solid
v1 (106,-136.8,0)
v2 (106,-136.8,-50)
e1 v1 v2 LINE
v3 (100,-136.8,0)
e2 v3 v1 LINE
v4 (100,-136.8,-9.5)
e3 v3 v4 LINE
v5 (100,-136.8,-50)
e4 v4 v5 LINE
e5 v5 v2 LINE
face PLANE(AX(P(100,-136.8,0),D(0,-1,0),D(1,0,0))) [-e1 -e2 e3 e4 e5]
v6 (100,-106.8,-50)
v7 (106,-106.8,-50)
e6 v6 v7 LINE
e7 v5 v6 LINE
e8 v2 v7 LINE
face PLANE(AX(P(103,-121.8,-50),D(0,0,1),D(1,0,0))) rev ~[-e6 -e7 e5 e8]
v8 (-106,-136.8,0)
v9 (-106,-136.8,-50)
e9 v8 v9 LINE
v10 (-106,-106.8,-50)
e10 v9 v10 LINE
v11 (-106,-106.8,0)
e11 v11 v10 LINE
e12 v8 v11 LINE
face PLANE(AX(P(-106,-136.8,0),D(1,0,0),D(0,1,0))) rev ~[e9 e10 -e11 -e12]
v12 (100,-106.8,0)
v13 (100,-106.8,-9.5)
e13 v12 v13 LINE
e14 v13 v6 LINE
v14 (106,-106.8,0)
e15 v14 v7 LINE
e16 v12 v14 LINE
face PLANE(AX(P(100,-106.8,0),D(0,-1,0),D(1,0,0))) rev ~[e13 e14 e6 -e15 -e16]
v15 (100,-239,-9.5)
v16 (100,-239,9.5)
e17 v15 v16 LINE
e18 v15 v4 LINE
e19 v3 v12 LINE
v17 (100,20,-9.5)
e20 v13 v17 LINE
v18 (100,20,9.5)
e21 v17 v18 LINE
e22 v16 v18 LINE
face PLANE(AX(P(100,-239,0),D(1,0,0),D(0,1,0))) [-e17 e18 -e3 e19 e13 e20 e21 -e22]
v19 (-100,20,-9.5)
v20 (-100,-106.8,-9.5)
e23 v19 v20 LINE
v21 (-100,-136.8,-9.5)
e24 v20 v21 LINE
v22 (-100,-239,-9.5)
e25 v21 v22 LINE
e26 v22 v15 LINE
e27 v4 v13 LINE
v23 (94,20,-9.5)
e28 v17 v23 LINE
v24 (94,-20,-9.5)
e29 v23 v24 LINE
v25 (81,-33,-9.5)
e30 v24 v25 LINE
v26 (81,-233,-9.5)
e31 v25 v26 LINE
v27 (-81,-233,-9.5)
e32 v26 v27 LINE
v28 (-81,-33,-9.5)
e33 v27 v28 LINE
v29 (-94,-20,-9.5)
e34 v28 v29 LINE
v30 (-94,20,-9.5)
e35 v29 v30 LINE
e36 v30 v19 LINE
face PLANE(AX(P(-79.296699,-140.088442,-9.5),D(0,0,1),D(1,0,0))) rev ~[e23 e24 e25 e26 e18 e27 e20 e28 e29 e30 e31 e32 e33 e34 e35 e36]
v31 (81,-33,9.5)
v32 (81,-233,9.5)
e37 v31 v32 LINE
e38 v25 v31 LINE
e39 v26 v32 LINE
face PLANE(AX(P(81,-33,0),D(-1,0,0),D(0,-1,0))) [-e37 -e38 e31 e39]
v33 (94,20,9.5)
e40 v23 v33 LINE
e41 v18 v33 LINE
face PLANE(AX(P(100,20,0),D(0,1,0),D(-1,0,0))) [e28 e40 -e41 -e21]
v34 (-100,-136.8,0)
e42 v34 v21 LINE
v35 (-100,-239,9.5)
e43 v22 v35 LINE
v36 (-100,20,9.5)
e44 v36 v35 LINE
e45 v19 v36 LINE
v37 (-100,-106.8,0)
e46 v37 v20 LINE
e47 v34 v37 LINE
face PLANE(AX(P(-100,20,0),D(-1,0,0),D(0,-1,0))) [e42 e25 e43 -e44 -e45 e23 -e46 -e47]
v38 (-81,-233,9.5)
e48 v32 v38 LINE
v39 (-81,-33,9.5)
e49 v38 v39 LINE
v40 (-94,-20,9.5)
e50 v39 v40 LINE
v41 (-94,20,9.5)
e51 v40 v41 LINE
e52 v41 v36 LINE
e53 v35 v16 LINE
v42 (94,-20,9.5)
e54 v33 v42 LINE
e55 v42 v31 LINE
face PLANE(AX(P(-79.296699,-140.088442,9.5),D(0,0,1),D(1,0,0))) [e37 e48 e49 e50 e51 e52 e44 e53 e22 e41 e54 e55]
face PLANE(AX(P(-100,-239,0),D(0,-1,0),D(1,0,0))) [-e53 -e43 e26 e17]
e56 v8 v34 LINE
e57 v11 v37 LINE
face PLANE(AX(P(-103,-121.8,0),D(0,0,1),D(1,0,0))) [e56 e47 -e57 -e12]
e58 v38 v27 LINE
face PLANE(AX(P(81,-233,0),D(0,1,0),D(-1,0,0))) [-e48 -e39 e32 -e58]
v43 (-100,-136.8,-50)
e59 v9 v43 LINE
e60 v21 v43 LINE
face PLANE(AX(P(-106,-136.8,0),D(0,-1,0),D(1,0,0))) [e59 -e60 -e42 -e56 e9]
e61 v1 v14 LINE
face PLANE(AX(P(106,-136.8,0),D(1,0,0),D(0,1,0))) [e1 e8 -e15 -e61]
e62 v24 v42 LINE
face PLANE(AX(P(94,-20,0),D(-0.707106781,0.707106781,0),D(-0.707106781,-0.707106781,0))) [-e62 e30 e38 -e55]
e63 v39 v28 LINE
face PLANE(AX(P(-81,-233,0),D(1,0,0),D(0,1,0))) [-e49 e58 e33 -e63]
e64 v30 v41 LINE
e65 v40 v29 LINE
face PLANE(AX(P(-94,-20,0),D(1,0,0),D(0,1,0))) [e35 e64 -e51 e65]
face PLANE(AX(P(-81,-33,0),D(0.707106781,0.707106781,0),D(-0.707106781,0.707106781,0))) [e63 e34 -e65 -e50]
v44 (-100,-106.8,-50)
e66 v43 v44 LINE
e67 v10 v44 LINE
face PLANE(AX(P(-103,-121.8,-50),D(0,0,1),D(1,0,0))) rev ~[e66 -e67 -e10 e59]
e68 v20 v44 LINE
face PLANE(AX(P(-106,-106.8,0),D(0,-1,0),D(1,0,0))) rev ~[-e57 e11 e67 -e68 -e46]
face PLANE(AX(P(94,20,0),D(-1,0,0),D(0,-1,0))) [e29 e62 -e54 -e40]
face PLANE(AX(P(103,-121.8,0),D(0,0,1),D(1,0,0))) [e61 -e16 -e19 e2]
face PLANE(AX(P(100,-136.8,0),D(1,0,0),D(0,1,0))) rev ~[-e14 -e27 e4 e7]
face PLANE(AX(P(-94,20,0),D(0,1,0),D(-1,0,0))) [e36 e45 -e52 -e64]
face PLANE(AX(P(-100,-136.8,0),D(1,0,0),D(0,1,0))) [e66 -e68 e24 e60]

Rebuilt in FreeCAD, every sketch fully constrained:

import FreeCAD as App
import Part
import Sketcher
from FreeCAD import Vector


def add_polygon(sketch, points):
    """Adds a closed chain of lines whose ends are joined by coincident constraints."""
    first, n = sketch.GeometryCount, len(points)
    for a, b in zip(points, points[1:] + points[:1]):
        sketch.addGeometry(Part.LineSegment(App.Vector(*a, 0), App.Vector(*b, 0)), False)
    for i in range(n):
        sketch.addConstraint(Sketcher.Constraint("Coincident", first + i, 2, first + (i + 1) % n, 1))

doc = App.newDocument("Part")
body = doc.addObject("PartDesign::Body", "Body")

sketch1 = body.newObject("Sketcher::SketchObject", "Sketch")
sketch1.AttachmentSupport = (doc.getObject("XY_Plane"), [""])
sketch1.MapMode = "FlatFace"
add_polygon(sketch1, [(-94, -20), (-94, 20), (-100, 20), (-100, -239), (100, -239), (100, 20), (94, 20), (94, -20), (81, -33), (81, -233), (-81, -233), (-81, -33)])
sketch1.addConstraint(Sketcher.Constraint("Vertical", 0))
sketch1.addConstraint(Sketcher.Constraint("Horizontal", 1))
sketch1.addConstraint(Sketcher.Constraint("Vertical", 2))
sketch1.addConstraint(Sketcher.Constraint("Horizontal", 3))
sketch1.addConstraint(Sketcher.Constraint("Vertical", 4))
sketch1.addConstraint(Sketcher.Constraint("Horizontal", 5))
sketch1.addConstraint(Sketcher.Constraint("Vertical", 6))
sketch1.addConstraint(Sketcher.Constraint("Vertical", 8))
sketch1.addConstraint(Sketcher.Constraint("Horizontal", 9))
sketch1.addConstraint(Sketcher.Constraint("Vertical", 10))
sketch1.addConstraint(Sketcher.Constraint("Symmetric", 0, 2, 6, 2, -1, 1))
sketch1.addConstraint(Sketcher.Constraint("Symmetric", 1, 2, 4, 2, -2))
sketch1.addConstraint(Sketcher.Constraint("Symmetric", 7, 2, 10, 2, -2))
sketch1.addConstraint(Sketcher.Constraint("Perpendicular", 7, 11))
sketch1.addConstraint(Sketcher.Constraint("Horizontal", 6, 2, 11, 2))
sketch1.addConstraint(Sketcher.Constraint("Equal", 3, 8))
sketch1.addConstraint(Sketcher.Constraint("DistanceX", 1, 2, 1, 1, 6.0))
sketch1.addConstraint(Sketcher.Constraint("DistanceX", 3, 1, 3, 2, 200.0))
sketch1.addConstraint(Sketcher.Constraint("DistanceX", 9, 2, 9, 1, 162.0))
sketch1.addConstraint(Sketcher.Constraint("DistanceY", 0, 1, 0, 2, 40.0))
sketch1.addConstraint(Sketcher.Constraint("DistanceY", 2, 2, 2, 1, 259.0))
pad1 = body.newObject("PartDesign::Pad", "Pad")
pad1.Profile = sketch1
pad1.Type = "TwoLengths"
pad1.Length = 9.5
pad1.Length2 = 9.5

sketch2 = body.newObject("Sketcher::SketchObject", "Sketch001")
sketch2.AttachmentSupport = (doc.getObject("XY_Plane"), [""])
sketch2.MapMode = "FlatFace"
add_polygon(sketch2, [(-106, -107), (-106, -137), (-100, -137), (-100, -107)])
add_polygon(sketch2, [(100, -107), (100, -137), (106, -137), (106, -107)])
sketch2.addConstraint(Sketcher.Constraint("Vertical", 0))
sketch2.addConstraint(Sketcher.Constraint("Horizontal", 1))
sketch2.addConstraint(Sketcher.Constraint("Vertical", 2))
sketch2.addConstraint(Sketcher.Constraint("Horizontal", 3))
sketch2.addConstraint(Sketcher.Constraint("Vertical", 4))
sketch2.addConstraint(Sketcher.Constraint("Horizontal", 5))
sketch2.addConstraint(Sketcher.Constraint("Vertical", 6))
sketch2.addConstraint(Sketcher.Constraint("Horizontal", 7))
sketch2.addConstraint(Sketcher.Constraint("Symmetric", 1, 2, 4, 2, -2))
sketch2.addConstraint(Sketcher.Constraint("Symmetric", 3, 2, 6, 2, -2))
sketch2.addConstraint(Sketcher.Constraint("DistanceX", 1, 1, 1, 2, 6.0))
sketch2.addConstraint(Sketcher.Constraint("DistanceY", 0, 2, 0, 1, 30.0))
sketch2.addConstraint(Sketcher.Constraint("DistanceX", 0, 2, -1, 1, 106.0))
sketch2.addConstraint(Sketcher.Constraint("DistanceY", 0, 2, -1, 1, 136.8))
pad2 = body.newObject("PartDesign::Pad", "Pad001")
pad2.Profile = sketch2
pad2.Length = 50
pad2.Reversed = True

doc.recompute()
